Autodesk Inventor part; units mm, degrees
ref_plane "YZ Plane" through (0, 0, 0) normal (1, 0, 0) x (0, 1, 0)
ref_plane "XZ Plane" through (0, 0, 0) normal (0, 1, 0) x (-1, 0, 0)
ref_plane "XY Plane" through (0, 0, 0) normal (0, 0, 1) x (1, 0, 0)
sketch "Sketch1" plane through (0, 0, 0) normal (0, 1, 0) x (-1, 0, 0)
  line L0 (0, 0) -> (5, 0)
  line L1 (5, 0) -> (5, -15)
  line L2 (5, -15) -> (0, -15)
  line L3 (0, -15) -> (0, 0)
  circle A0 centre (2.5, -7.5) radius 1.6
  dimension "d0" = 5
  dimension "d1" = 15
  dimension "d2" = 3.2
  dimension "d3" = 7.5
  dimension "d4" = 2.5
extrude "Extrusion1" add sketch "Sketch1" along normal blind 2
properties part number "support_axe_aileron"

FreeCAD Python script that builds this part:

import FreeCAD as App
import Part
import Sketcher
Q = App.Units.Quantity


def add_polygon(sketch, points):
    """Adds a closed chain of lines whose ends are joined by coincident constraints."""
    first, n = sketch.GeometryCount, len(points)
    for a, b in zip(points, points[1:] + points[:1]):
        sketch.addGeometry(Part.LineSegment(App.Vector(*a, 0), App.Vector(*b, 0)), False)
    for i in range(n):
        sketch.addConstraint(Sketcher.Constraint("Coincident", first + i, 2, first + (i + 1) % n, 1))

doc = App.newDocument("Part")
body = doc.addObject("PartDesign::Body", "Body")

sketch1 = body.newObject("Sketcher::SketchObject", "Sketch")
sketch1.AttachmentSupport = (doc.getObject("XZ_Plane"), [""])
sketch1.MapMode = "FlatFace"
add_polygon(sketch1, [(-5, 0), (0, 0), (0, -15), (-5, -15)])
sketch1.addGeometry(Part.Circle(App.Vector(-2.5, -7.5, 0), App.Vector(0, 0, 1), 1.6), False)
sketch1.addConstraint(Sketcher.Constraint("Horizontal", 0))
sketch1.addConstraint(Sketcher.Constraint("Vertical", 1))
sketch1.addConstraint(Sketcher.Constraint("Horizontal", 2))
sketch1.addConstraint(Sketcher.Constraint("Vertical", 3))
sketch1.addConstraint(Sketcher.Constraint("Coincident", 0, 2, -1, 1))
sketch1.addConstraint(Sketcher.Constraint("Diameter", 4, Q("3.2 mm")))
sketch1.addConstraint(Sketcher.Constraint("DistanceX", 0, 1, 0, 2, Q("5 mm")))
sketch1.addConstraint(Sketcher.Constraint("DistanceY", 1, 2, 1, 1, Q("15 mm")))
sketch1.addConstraint(Sketcher.Constraint("DistanceX", 4, 3, -1, 1, Q("2.5 mm")))
sketch1.addConstraint(Sketcher.Constraint("DistanceY", 4, 3, -1, 1, Q("7.5 mm")))
pad1 = body.newObject("PartDesign::Pad", "Pad")
pad1.Profile = sketch1
pad1.Length = 2
pad1.Reversed = True

doc.recompute()
